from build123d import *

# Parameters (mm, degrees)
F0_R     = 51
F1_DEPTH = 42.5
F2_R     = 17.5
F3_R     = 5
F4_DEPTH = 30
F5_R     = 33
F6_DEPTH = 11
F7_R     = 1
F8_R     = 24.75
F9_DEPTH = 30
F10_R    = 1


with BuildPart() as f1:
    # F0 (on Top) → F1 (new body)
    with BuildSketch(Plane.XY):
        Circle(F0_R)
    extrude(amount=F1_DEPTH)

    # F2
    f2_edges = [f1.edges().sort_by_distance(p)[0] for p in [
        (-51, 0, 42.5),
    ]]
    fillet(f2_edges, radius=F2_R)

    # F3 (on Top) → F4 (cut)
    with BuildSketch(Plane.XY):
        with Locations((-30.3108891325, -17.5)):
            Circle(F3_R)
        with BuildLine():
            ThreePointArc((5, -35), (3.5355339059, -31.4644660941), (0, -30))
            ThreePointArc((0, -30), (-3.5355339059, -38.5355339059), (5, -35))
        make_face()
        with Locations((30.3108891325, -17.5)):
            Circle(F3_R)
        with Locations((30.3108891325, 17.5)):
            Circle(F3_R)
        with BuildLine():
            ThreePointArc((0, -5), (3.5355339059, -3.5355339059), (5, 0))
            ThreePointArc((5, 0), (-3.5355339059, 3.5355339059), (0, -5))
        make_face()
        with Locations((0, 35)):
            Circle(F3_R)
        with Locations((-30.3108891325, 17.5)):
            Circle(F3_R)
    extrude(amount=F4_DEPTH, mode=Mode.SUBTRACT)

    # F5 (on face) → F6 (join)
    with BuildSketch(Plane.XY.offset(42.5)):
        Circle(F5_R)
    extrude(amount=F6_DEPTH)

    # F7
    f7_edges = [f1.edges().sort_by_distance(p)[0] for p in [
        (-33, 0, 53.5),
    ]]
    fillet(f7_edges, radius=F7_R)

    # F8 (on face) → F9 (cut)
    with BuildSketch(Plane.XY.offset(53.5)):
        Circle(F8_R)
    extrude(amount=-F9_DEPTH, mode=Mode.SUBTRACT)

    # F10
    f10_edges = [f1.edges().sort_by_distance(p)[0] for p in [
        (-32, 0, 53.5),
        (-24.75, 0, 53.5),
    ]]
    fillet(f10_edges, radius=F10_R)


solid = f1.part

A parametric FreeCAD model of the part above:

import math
import FreeCAD as App
import Part
import Sketcher

V = App.Vector


def edges_at(feature, points):
    """Names of the edges that pass closest to the given points."""
    edges = feature.Shape.Edges
    near = lambda p: min(range(len(edges)), key=lambda i: edges[i].distToShape(Part.Vertex(*p))[0])
    return sorted({f"Edge{near(p) + 1}" for p in points})

doc = App.newDocument("Part")
params = doc.addObject("Spreadsheet::Sheet", "Params")
for row, (alias, value) in enumerate([
    ("sketch1_diameter", "102 mm"),
    ("pad1_length", "42.5 mm"),
    ("fillet_radius", "17.5 mm"),
    ("sketch2_diameter", "10 mm"),
    ("pocket1_length", "30 mm"),
    ("sketch3_diameter", "66 mm"),
    ("pad2_length", "11 mm"),
    ("fillet2_radius", "1 mm"),
    ("sketch4_diameter", "49.5 mm"),
    ("pocket2_length", "30 mm"),
    ("fillet3_radius", "1 mm"),
], start=1):
    params.set(f"A{row}", alias)
    params.set(f"B{row}", "=" + value)
    params.setAlias(f"B{row}", alias)

body = doc.addObject("PartDesign::Body", "Body")

# Sketch on XY plane
sketch1 = body.newObject("Sketcher::SketchObject", "Sketch")
sketch1.AttachmentSupport = (doc.getObject("XY_Plane"), [""])
sketch1.MapMode = "FlatFace"
sketch1.addGeometry(Part.Circle(V(0, 0, 0), V(0, 0, 1), 51), False)
sketch1.addConstraint([
    Sketcher.Constraint("Coincident", 0, 3, -1, 1),
    Sketcher.Constraint("Diameter", 0, 102.0),
])
sketch1.setExpression("Constraints[1]", "Params.sketch1_diameter")
pad1 = body.newObject("PartDesign::Pad", "Pad")
pad1.Profile = sketch1
pad1.setExpression("Length", "Params.pad1_length")
doc.recompute()

fillet = body.newObject("PartDesign::Fillet", "Fillet")
fillet.Base = (pad1, edges_at(pad1, [(-51, 0, 42.5)]))
fillet.setExpression("Radius", "Params.fillet_radius")

# Sketch on XY plane
sketch2 = body.newObject("Sketcher::SketchObject", "Sketch001")
sketch2.AttachmentSupport = (doc.getObject("XY_Plane"), [""])
sketch2.MapMode = "FlatFace"
sketch2.addGeometry([
    Part.Circle(V(-30.310889, -17.5, 0), V(0, 0, 1), 5),  # 0
    Part.ArcOfCircle(Part.Circle(V(0, -35, 0), V(0, 0, 1), 5), math.radians(0), math.radians(90)),  # 1
    Part.ArcOfCircle(Part.Circle(V(0, -35, 0), V(0, 0, 1), 5), math.radians(90), math.radians(360)),  # 2
    Part.Circle(V(30.310889, -17.5, 0), V(0, 0, 1), 5),  # 3
    Part.Circle(V(30.310889, 17.5, 0), V(0, 0, 1), 5),  # 4
    Part.ArcOfCircle(Part.Circle(V(0, 0, 0), V(0, 0, 1), 5), math.radians(-90), math.radians(0)),  # 5
    Part.ArcOfCircle(Part.Circle(V(0, 0, 0), V(0, 0, 1), 5), math.radians(0), math.radians(270)),  # 6
    Part.Circle(V(0, 35, 0), V(0, 0, 1), 5),  # 7
    Part.Circle(V(-30.310889, 17.5, 0), V(0, 0, 1), 5),  # 8
], False)
sketch2.addConstraint([
    Sketcher.Constraint("Tangent", 1, 1, 2, 2),
    Sketcher.Constraint("Coincident", 2, 1, 1, 2),
    Sketcher.Constraint("Tangent", 5, 1, 6, 2),
    Sketcher.Constraint("Coincident", 6, 1, 5, 2),
    Sketcher.Constraint("Coincident", 5, 3, -1, 1),
    Sketcher.Constraint("Equal", 0, 1),
    Sketcher.Constraint("Equal", 2, 3),
    Sketcher.Constraint("Equal", 3, 4),
    Sketcher.Constraint("Equal", 4, 5),
    Sketcher.Constraint("Equal", 6, 7),
    Sketcher.Constraint("Equal", 7, 8),
    Sketcher.Constraint("Symmetric", 0, 3, 4, 3, -1, 1),
    Sketcher.Constraint("Symmetric", 1, 3, 7, 3, -1, 1),
    Sketcher.Constraint("Symmetric", 3, 3, 8, 3, -1, 1),
    Sketcher.Constraint("Symmetric", 0, 3, 3, 3, -2),
    Sketcher.Constraint("PointOnObject", 1, 3, -2),
    Sketcher.Constraint("PointOnObject", 2, 1, -2),
    Sketcher.Constraint("PointOnObject", 5, 1, -2),
    Sketcher.Constraint("PointOnObject", 6, 1, -1),
    Sketcher.Constraint("Horizontal", 2, 3, 1, 1),
    Sketcher.Constraint("Diameter", 0, 10.0),
    Sketcher.Constraint("DistanceY", 1, 3, -1, 1, 35.0),
    Sketcher.Constraint("DistanceY", 3, 3, 4, 3, 35.0),
    Sketcher.Constraint("DistanceX", 0, 3, -1, 1, 30.310889),
])
sketch2.setExpression("Constraints[20]", "Params.sketch2_diameter")
pocket1 = body.newObject("PartDesign::Pocket", "Pocket")
pocket1.Profile = sketch2
pocket1.setExpression("Length", "Params.pocket1_length")
pocket1.Reversed = True

# Sketch on XY plane
sketch3 = body.newObject("Sketcher::SketchObject", "Sketch002")
sketch3.AttachmentSupport = (doc.getObject("XY_Plane"), [""])
sketch3.MapMode = "FlatFace"
sketch3.AttachmentOffset = App.Placement(V(0, 0, 42.5), App.Rotation())
sketch3.addGeometry(Part.Circle(V(0, 0, 0), V(0, 0, 1), 33), False)
sketch3.addConstraint([
    Sketcher.Constraint("Coincident", 0, 3, -1, 1),
    Sketcher.Constraint("Diameter", 0, 66.0),
])
sketch3.setExpression("Constraints[1]", "Params.sketch3_diameter")
pad2 = body.newObject("PartDesign::Pad", "Pad001")
pad2.Profile = sketch3
pad2.setExpression("Length", "Params.pad2_length")
doc.recompute()

fillet2 = body.newObject("PartDesign::Fillet", "Fillet001")
fillet2.Base = (pad2, edges_at(pad2, [(-33, 0, 53.5)]))
fillet2.setExpression("Radius", "Params.fillet2_radius")

# Sketch on XY plane
sketch4 = body.newObject("Sketcher::SketchObject", "Sketch003")
sketch4.AttachmentSupport = (doc.getObject("XY_Plane"), [""])
sketch4.MapMode = "FlatFace"
sketch4.AttachmentOffset = App.Placement(V(0, 0, 53.5), App.Rotation())
sketch4.addGeometry(Part.Circle(V(0, 0, 0), V(0, 0, 1), 24.75), False)
sketch4.addConstraint([
    Sketcher.Constraint("Coincident", 0, 3, -1, 1),
    Sketcher.Constraint("Diameter", 0, 49.5),
])
sketch4.setExpression("Constraints[1]", "Params.sketch4_diameter")
pocket2 = body.newObject("PartDesign::Pocket", "Pocket001")
pocket2.Profile = sketch4
pocket2.setExpression("Length", "Params.pocket2_length")
doc.recompute()

fillet3 = body.newObject("PartDesign::Fillet", "Fillet002")
fillet3.Base = (pocket2, edges_at(pocket2, [(-32, 0, 53.5), (-24.75, 0, 53.5)]))
fillet3.setExpression("Radius", "Params.fillet3_radius")

doc.recompute()
